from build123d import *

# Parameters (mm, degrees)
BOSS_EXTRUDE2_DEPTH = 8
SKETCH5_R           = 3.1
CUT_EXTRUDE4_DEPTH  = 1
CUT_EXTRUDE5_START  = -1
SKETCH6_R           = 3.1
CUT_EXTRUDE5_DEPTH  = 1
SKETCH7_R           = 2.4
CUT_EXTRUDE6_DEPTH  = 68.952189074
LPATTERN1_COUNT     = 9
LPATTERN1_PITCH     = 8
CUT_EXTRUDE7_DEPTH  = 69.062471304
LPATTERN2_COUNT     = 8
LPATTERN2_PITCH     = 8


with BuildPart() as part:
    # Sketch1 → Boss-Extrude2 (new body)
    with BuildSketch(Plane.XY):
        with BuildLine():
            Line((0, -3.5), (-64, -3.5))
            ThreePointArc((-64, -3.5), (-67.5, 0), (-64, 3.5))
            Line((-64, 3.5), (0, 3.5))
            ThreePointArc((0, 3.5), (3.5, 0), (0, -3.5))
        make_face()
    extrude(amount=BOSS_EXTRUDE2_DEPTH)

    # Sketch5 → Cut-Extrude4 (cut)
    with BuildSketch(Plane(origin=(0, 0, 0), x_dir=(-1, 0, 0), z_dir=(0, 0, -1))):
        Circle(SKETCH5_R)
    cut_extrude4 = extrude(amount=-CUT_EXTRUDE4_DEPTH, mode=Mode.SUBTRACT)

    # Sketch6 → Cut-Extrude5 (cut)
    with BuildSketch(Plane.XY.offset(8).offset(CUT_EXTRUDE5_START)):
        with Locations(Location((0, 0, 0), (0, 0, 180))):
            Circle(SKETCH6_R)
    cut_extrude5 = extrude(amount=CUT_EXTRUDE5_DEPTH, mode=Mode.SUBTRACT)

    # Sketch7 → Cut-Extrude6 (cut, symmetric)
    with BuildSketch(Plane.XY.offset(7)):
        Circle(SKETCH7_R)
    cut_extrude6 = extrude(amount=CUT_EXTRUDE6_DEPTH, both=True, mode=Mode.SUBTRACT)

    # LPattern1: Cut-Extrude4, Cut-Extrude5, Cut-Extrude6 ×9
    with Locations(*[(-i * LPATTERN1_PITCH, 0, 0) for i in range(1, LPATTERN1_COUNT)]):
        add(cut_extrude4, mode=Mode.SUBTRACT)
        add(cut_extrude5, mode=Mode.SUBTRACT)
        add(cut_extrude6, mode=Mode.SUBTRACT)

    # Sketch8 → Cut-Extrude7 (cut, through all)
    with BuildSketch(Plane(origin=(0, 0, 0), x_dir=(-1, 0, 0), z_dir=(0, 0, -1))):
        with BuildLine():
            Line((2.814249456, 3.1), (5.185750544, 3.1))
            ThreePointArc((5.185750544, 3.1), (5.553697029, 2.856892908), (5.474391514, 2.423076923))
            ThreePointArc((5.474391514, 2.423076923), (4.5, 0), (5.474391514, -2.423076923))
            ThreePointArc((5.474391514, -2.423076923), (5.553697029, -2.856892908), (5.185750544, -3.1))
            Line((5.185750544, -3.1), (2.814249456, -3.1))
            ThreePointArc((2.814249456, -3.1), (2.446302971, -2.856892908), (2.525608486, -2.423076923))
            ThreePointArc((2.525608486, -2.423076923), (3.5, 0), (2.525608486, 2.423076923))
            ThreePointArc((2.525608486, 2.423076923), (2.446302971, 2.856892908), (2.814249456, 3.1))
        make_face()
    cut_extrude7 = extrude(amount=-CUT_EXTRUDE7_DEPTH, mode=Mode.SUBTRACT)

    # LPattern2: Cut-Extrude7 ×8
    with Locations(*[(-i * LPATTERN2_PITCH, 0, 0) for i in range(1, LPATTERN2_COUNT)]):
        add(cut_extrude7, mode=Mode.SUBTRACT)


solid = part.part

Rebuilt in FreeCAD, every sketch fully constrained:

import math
import FreeCAD as App
import Part
import Sketcher
Q = App.Units.Quantity

doc = App.newDocument("Part")
body = doc.addObject("PartDesign::Body", "Body")

# Sketch on XY plane
sketch1 = body.newObject("Sketcher::SketchObject", "Sketch")
sketch1.AttachmentSupport = (doc.getObject("XY_Plane"), [""])
sketch1.MapMode = "FlatFace"
sketch1.addGeometry(Part.LineSegment(App.Vector(-64, -3.5, 0), App.Vector(0, -3.5, 0)), False)
sketch1.addGeometry(Part.ArcOfCircle(Part.Circle(App.Vector(0, 0, 0), App.Vector(0, 0, 1), 3.5), math.radians(-90), math.radians(90)), False)
sketch1.addGeometry(Part.LineSegment(App.Vector(0, 3.5, 0), App.Vector(-64, 3.5, 0)), False)
sketch1.addGeometry(Part.ArcOfCircle(Part.Circle(App.Vector(-64, 0, 0), App.Vector(0, 0, 1), 3.5), math.radians(90), math.radians(270)), False)
sketch1.addConstraint(Sketcher.Constraint("Tangent", 0, 2, 1, 1))
sketch1.addConstraint(Sketcher.Constraint("Tangent", 1, 2, 2, 1))
sketch1.addConstraint(Sketcher.Constraint("Tangent", 2, 2, 3, 1))
sketch1.addConstraint(Sketcher.Constraint("Tangent", 3, 2, 0, 1))
sketch1.addConstraint(Sketcher.Constraint("Horizontal", 0))
sketch1.addConstraint(Sketcher.Constraint("Horizontal", 2))
sketch1.addConstraint(Sketcher.Constraint("Coincident", 1, 3, -1, 1))
sketch1.addConstraint(Sketcher.Constraint("Radius", 1, Q("3.5 mm")))
sketch1.addConstraint(Sketcher.Constraint("DistanceX", 0, 1, 0, 2, Q("64 mm")))
pad1 = body.newObject("PartDesign::Pad", "Pad")
pad1.Profile = sketch1
pad1.Length = 8

# Sketch on XY plane
sketch2 = body.newObject("Sketcher::SketchObject", "Sketch001")
sketch2.AttachmentSupport = (doc.getObject("XY_Plane"), [""])
sketch2.MapMode = "FlatFace"
sketch2.addGeometry(Part.Circle(App.Vector(0, 0, 0), App.Vector(0, 0, 1), 3.1), False)
sketch2.addConstraint(Sketcher.Constraint("Coincident", 0, 3, -1, 1))
sketch2.addConstraint(Sketcher.Constraint("Diameter", 0, Q("6.2 mm")))
pocket1 = body.newObject("PartDesign::Pocket", "Pocket")
pocket1.Profile = sketch2
pocket1.Length = 1
pocket1.Reversed = True

# Sketch on XY plane
sketch3 = body.newObject("Sketcher::SketchObject", "Sketch002")
sketch3.AttachmentSupport = (doc.getObject("XY_Plane"), [""])
sketch3.MapMode = "FlatFace"
sketch3.AttachmentOffset = App.Placement(App.Vector(0, 0, 7), App.Rotation())
sketch3.addGeometry(Part.Circle(App.Vector(0, 0, 0), App.Vector(0, 0, 1), 3.1), False)
sketch3.addConstraint(Sketcher.Constraint("Coincident", 0, 3, -1, 1))
sketch3.addConstraint(Sketcher.Constraint("Diameter", 0, Q("6.2 mm")))
pocket2 = body.newObject("PartDesign::Pocket", "Pocket001")
pocket2.Profile = sketch3
pocket2.Length = 1
pocket2.Reversed = True

# Sketch on XY plane
sketch4 = body.newObject("Sketcher::SketchObject", "Sketch003")
sketch4.AttachmentSupport = (doc.getObject("XY_Plane"), [""])
sketch4.MapMode = "FlatFace"
sketch4.AttachmentOffset = App.Placement(App.Vector(0, 0, 7), App.Rotation())
sketch4.addGeometry(Part.Circle(App.Vector(0, 0, 0), App.Vector(0, 0, 1), 2.4), False)
sketch4.addConstraint(Sketcher.Constraint("Coincident", 0, 3, -1, 1))
sketch4.addConstraint(Sketcher.Constraint("Diameter", 0, Q("4.8 mm")))
pocket3 = body.newObject("PartDesign::Pocket", "Pocket002")
pocket3.Profile = sketch4
pocket3.Length = 137.904378
pocket3.Midplane = True
doc.recompute()

linearpattern = body.newObject("PartDesign::LinearPattern", "LinearPattern")
linearpattern.Originals = [pocket1, pocket2, pocket3]
linearpattern.Direction = (doc.getObject("X_Axis"), [""])
linearpattern.Mode = "offset"
linearpattern.Offset = 8
linearpattern.Occurrences = 9
linearpattern.Reversed = True
body.Tip = linearpattern

# Sketch on XY plane
sketch5 = body.newObject("Sketcher::SketchObject", "Sketch004")
sketch5.AttachmentSupport = (doc.getObject("XY_Plane"), [""])
sketch5.MapMode = "FlatFace"
sketch5.addGeometry(Part.LineSegment(App.Vector(-5.19, 3.1, 0), App.Vector(-2.81, 3.1, 0)), False)
sketch5.addGeometry(Part.ArcOfCircle(Part.Circle(App.Vector(-2.81, 2.7, 0), App.Vector(0, 0, 1), 0.4), math.radians(-44), math.radians(90)), False)
sketch5.addGeometry(Part.ArcOfCircle(Part.Circle(App.Vector(0, 0, 0), App.Vector(0, 0, 1), 3.5), math.radians(136), math.radians(224)), False)
sketch5.addGeometry(Part.ArcOfCircle(Part.Circle(App.Vector(-2.81, -2.7, 0), App.Vector(0, 0, 1), 0.4), math.radians(-90), math.radians(44)), False)
sketch5.addGeometry(Part.LineSegment(App.Vector(-2.81, -3.1, 0), App.Vector(-5.19, -3.1, 0)), False)
sketch5.addGeometry(Part.ArcOfCircle(Part.Circle(App.Vector(-5.19, -2.7, 0), App.Vector(0, 0, 1), 0.4), math.radians(136), math.radians(270)), False)
sketch5.addGeometry(Part.ArcOfCircle(Part.Circle(App.Vector(-8, 0, 0), App.Vector(0, 0, 1), 3.5), math.radians(-44), math.radians(44)), False)
sketch5.addGeometry(Part.ArcOfCircle(Part.Circle(App.Vector(-5.19, 2.7, 0), App.Vector(0, 0, 1), 0.4), math.radians(90), math.radians(224)), False)
sketch5.addConstraint(Sketcher.Constraint("Tangent", 0, 2, 1, 2))
sketch5.addConstraint(Sketcher.Constraint("Tangent", 1, 1, 2, 1))
sketch5.addConstraint(Sketcher.Constraint("Tangent", 2, 2, 3, 2))
sketch5.addConstraint(Sketcher.Constraint("Tangent", 3, 1, 4, 1))
sketch5.addConstraint(Sketcher.Constraint("Tangent", 4, 2, 5, 2))
sketch5.addConstraint(Sketcher.Constraint("Tangent", 5, 1, 6, 1))
sketch5.addConstraint(Sketcher.Constraint("Tangent", 6, 2, 7, 2))
sketch5.addConstraint(Sketcher.Constraint("Tangent", 7, 1, 0, 1))
sketch5.addConstraint(Sketcher.Constraint("Horizontal", 0))
sketch5.addConstraint(Sketcher.Constraint("Horizontal", 4))
sketch5.addConstraint(Sketcher.Constraint("Coincident", 2, 3, -1, 1))
sketch5.addConstraint(Sketcher.Constraint("Equal", 1, 3))
sketch5.addConstraint(Sketcher.Constraint("Equal", 3, 5))
sketch5.addConstraint(Sketcher.Constraint("Equal", 2, 6))
sketch5.addConstraint(Sketcher.Constraint("Equal", 5, 7))
sketch5.addConstraint(Sketcher.Constraint("Symmetric", 5, 3, 7, 3, -1))
sketch5.addConstraint(Sketcher.Constraint("Radius", 1, Q("0.4 mm")))
sketch5.addConstraint(Sketcher.Constraint("Radius", 2, Q("3.5 mm")))
sketch5.addConstraint(Sketcher.Constraint("DistanceX", 6, 3, -1, 1, Q("8 mm")))
sketch5.addConstraint(Sketcher.Constraint("DistanceY", -1, 1, 1, 3, Q("2.7 mm")))
pocket4 = body.newObject("PartDesign::Pocket", "Pocket003")
pocket4.Profile = sketch5
pocket4.Type = "ThroughAll"
pocket4.Reversed = True
doc.recompute()

linearpattern2 = body.newObject("PartDesign::LinearPattern", "LinearPattern001")
linearpattern2.Originals = [pocket4]
linearpattern2.Direction = (doc.getObject("X_Axis"), [""])
linearpattern2.Mode = "offset"
linearpattern2.Offset = 8
linearpattern2.Occurrences = 8
linearpattern2.Reversed = True
body.Tip = linearpattern2

doc.recompute()
